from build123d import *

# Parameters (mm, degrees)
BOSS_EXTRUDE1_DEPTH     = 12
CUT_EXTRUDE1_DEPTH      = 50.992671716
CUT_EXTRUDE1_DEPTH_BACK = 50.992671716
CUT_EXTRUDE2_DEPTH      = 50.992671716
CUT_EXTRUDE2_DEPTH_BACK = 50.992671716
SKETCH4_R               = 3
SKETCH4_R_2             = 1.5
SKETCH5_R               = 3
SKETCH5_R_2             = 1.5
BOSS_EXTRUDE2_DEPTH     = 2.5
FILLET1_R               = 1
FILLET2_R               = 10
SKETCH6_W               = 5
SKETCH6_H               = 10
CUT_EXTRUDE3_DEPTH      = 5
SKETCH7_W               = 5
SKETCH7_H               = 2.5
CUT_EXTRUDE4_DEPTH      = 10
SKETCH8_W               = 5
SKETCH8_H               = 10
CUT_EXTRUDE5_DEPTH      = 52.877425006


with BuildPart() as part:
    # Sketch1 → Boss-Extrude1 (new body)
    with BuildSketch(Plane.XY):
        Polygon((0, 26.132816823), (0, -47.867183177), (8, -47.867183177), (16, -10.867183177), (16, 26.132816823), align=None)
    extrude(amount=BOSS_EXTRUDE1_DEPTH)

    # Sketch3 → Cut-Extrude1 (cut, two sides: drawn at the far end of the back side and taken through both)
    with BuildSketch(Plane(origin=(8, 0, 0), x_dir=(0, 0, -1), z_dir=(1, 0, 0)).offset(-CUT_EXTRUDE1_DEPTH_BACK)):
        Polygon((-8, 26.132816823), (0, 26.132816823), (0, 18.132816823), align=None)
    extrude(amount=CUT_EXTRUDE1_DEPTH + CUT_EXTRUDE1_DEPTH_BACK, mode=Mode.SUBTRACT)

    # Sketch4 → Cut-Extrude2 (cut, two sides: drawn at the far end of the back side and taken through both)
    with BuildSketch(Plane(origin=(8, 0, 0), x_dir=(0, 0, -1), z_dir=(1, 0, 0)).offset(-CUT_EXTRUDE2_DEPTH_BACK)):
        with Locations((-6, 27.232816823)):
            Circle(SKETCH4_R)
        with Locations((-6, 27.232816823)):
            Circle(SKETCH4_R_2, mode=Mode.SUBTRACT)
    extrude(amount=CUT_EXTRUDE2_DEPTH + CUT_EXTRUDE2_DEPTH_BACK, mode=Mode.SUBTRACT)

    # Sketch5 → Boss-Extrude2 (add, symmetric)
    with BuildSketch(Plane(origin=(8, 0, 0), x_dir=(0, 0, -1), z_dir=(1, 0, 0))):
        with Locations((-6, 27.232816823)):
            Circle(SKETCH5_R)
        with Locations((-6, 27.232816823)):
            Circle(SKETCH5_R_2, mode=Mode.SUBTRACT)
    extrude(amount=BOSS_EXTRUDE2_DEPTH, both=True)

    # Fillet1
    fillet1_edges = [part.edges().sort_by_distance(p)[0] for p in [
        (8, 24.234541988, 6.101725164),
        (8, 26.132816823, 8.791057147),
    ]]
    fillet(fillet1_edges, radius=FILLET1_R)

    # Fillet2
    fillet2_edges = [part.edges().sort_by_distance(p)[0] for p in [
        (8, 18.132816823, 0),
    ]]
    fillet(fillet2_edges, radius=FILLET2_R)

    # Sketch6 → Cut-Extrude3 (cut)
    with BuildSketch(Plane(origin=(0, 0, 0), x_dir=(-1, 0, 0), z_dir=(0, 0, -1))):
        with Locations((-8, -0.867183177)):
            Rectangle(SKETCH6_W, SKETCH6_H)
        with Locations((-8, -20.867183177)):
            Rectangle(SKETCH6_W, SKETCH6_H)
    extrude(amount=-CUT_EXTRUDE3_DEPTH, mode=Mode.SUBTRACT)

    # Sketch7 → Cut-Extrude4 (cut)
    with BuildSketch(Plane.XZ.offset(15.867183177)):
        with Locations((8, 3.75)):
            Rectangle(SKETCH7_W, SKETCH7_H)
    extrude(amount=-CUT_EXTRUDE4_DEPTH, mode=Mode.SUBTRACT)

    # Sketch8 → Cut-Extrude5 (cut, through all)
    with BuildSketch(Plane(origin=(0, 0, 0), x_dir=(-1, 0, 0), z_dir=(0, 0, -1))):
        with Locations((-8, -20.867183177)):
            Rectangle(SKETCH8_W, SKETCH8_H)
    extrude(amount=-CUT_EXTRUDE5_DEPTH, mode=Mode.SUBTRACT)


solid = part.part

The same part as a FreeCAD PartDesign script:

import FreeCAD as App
import Part
import Sketcher


def edges_at(feature, points):
    """Names of the edges that pass closest to the given points."""
    edges = feature.Shape.Edges
    near = lambda p: min(range(len(edges)), key=lambda i: edges[i].distToShape(Part.Vertex(*p))[0])
    return sorted({f"Edge{near(p) + 1}" for p in points})


def add_polygon(sketch, points):
    """Adds a closed chain of lines whose ends are joined by coincident constraints."""
    first, n = sketch.GeometryCount, len(points)
    for a, b in zip(points, points[1:] + points[:1]):
        sketch.addGeometry(Part.LineSegment(App.Vector(*a, 0), App.Vector(*b, 0)), False)
    for i in range(n):
        sketch.addConstraint(Sketcher.Constraint("Coincident", first + i, 2, first + (i + 1) % n, 1))

doc = App.newDocument("Part")
body = doc.addObject("PartDesign::Body", "Body")

sketch1 = body.newObject("Sketcher::SketchObject", "Sketch")
sketch1.AttachmentSupport = (doc.getObject("XY_Plane"), [""])
sketch1.MapMode = "FlatFace"
add_polygon(sketch1, [(0, 26.132817), (0, -47.867183), (8, -47.867183), (16, -10.867183), (16, 26.132817)])
sketch1.addConstraint(Sketcher.Constraint("Vertical", 0))
sketch1.addConstraint(Sketcher.Constraint("Horizontal", 1))
sketch1.addConstraint(Sketcher.Constraint("Vertical", 3))
sketch1.addConstraint(Sketcher.Constraint("Horizontal", 4))
sketch1.addConstraint(Sketcher.Constraint("PointOnObject", 0, 2, -2))
sketch1.addConstraint(Sketcher.Constraint("DistanceX", 1, 1, 1, 2, 8.0))
sketch1.addConstraint(Sketcher.Constraint("DistanceX", 4, 2, 4, 1, 16.0))
sketch1.addConstraint(Sketcher.Constraint("DistanceY", 0, 2, 0, 1, 74.0))
sketch1.addConstraint(Sketcher.Constraint("DistanceY", 3, 1, 3, 2, 37.0))
sketch1.addConstraint(Sketcher.Constraint("DistanceY", 0, 2, -1, 1, 47.867183))
pad1 = body.newObject("PartDesign::Pad", "Pad")
pad1.Profile = sketch1
pad1.Length = 12

sketch2 = body.newObject("Sketcher::SketchObject", "Sketch001")
sketch2.AttachmentSupport = (doc.getObject("YZ_Plane"), [""])
sketch2.MapMode = "FlatFace"
sketch2.AttachmentOffset = App.Placement(App.Vector(0, 0, 8), App.Rotation())
add_polygon(sketch2, [(26.132817, 0), (26.132817, 8), (18.132817, 0)])
sketch2.addConstraint(Sketcher.Constraint("Vertical", 0))
sketch2.addConstraint(Sketcher.Constraint("Horizontal", 2))
sketch2.addConstraint(Sketcher.Constraint("PointOnObject", 1, 2, -1))
sketch2.addConstraint(Sketcher.Constraint("Equal", 2, 0))
sketch2.addConstraint(Sketcher.Constraint("DistanceX", 2, 1, 2, 2, 8.0))
sketch2.addConstraint(Sketcher.Constraint("DistanceX", -1, 1, 0, 2, 26.132817))
pocket1 = body.newObject("PartDesign::Pocket", "Pocket")
pocket1.Profile = sketch2
pocket1.Type = "ThroughAll"
pocket1.Midplane = True

sketch3 = body.newObject("Sketcher::SketchObject", "Sketch002")
sketch3.AttachmentSupport = (doc.getObject("YZ_Plane"), [""])
sketch3.MapMode = "FlatFace"
sketch3.AttachmentOffset = App.Placement(App.Vector(0, 0, 8), App.Rotation())
sketch3.addGeometry(Part.Circle(App.Vector(27.232817, 6, 0), App.Vector(0, 0, 1), 3), False)
sketch3.addGeometry(Part.Circle(App.Vector(27.232817, 6, 0), App.Vector(0, 0, 1), 1.5), False)
sketch3.addConstraint(Sketcher.Constraint("Coincident", 1, 3, 0, 3))
sketch3.addConstraint(Sketcher.Constraint("Diameter", 0, 6.0))
sketch3.addConstraint(Sketcher.Constraint("Diameter", 1, 3.0))
sketch3.addConstraint(Sketcher.Constraint("DistanceY", -1, 1, 0, 3, 6.0))
sketch3.addConstraint(Sketcher.Constraint("DistanceX", -1, 1, 0, 3, 27.232817))
pocket2 = body.newObject("PartDesign::Pocket", "Pocket001")
pocket2.Profile = sketch3
pocket2.Type = "ThroughAll"
pocket2.Midplane = True

sketch4 = body.newObject("Sketcher::SketchObject", "Sketch003")
sketch4.AttachmentSupport = (doc.getObject("YZ_Plane"), [""])
sketch4.MapMode = "FlatFace"
sketch4.AttachmentOffset = App.Placement(App.Vector(0, 0, 8), App.Rotation())
sketch4.addGeometry(Part.Circle(App.Vector(27.232817, 6, 0), App.Vector(0, 0, 1), 3), False)
sketch4.addGeometry(Part.Circle(App.Vector(27.232817, 6, 0), App.Vector(0, 0, 1), 1.5), False)
sketch4.addConstraint(Sketcher.Constraint("Coincident", 1, 3, 0, 3))
sketch4.addConstraint(Sketcher.Constraint("Diameter", 0, 6.0))
sketch4.addConstraint(Sketcher.Constraint("Diameter", 1, 3.0))
sketch4.addConstraint(Sketcher.Constraint("DistanceY", -1, 1, 0, 3, 6.0))
sketch4.addConstraint(Sketcher.Constraint("DistanceX", -1, 1, 0, 3, 27.232817))
pad2 = body.newObject("PartDesign::Pad", "Pad001")
pad2.Profile = sketch4
pad2.Length = 5
pad2.Midplane = True
doc.recompute()

fillet = body.newObject("PartDesign::Fillet", "Fillet")
fillet.Base = (pad2, edges_at(pad2, [(8, 24.235, 6.102), (8, 26.133, 8.791)]))
fillet.Radius = 1
doc.recompute()

fillet2 = body.newObject("PartDesign::Fillet", "Fillet001")
fillet2.Base = (fillet, edges_at(fillet, [(8, 18.133, 0)]))
fillet2.Radius = 10

sketch5 = body.newObject("Sketcher::SketchObject", "Sketch004")
sketch5.AttachmentSupport = (doc.getObject("XY_Plane"), [""])
sketch5.MapMode = "FlatFace"
add_polygon(sketch5, [(10.5, 4.132817), (10.5, -5.867183), (5.5, -5.867183), (5.5, 4.132817)])
add_polygon(sketch5, [(10.5, -15.867183), (10.5, -25.867183), (5.5, -25.867183), (5.5, -15.867183)])
sketch5.addConstraint(Sketcher.Constraint("Vertical", 0))
sketch5.addConstraint(Sketcher.Constraint("Horizontal", 1))
sketch5.addConstraint(Sketcher.Constraint("Vertical", 2))
sketch5.addConstraint(Sketcher.Constraint("Horizontal", 3))
sketch5.addConstraint(Sketcher.Constraint("Vertical", 4))
sketch5.addConstraint(Sketcher.Constraint("Horizontal", 5))
sketch5.addConstraint(Sketcher.Constraint("Vertical", 6))
sketch5.addConstraint(Sketcher.Constraint("Horizontal", 7))
sketch5.addConstraint(Sketcher.Constraint("Vertical", 3, 2, 4, 2))
sketch5.addConstraint(Sketcher.Constraint("Vertical", 2, 2, 5, 2))
sketch5.addConstraint(Sketcher.Constraint("Equal", 2, 4))
sketch5.addConstraint(Sketcher.Constraint("DistanceX", 1, 2, 1, 1, 5.0))
sketch5.addConstraint(Sketcher.Constraint("DistanceY", 0, 2, 0, 1, 10.0))
sketch5.addConstraint(Sketcher.Constraint("DistanceY", 4, 2, 0, 2, 20.0))
sketch5.addConstraint(Sketcher.Constraint("DistanceX", -1, 1, 0, 2, 10.5))
sketch5.addConstraint(Sketcher.Constraint("DistanceY", 0, 2, -1, 1, 5.867183))
pocket3 = body.newObject("PartDesign::Pocket", "Pocket002")
pocket3.Profile = sketch5
pocket3.Length = 5
pocket3.Reversed = True

sketch6 = body.newObject("Sketcher::SketchObject", "Sketch005")
sketch6.AttachmentSupport = (doc.getObject("XZ_Plane"), [""])
sketch6.MapMode = "FlatFace"
sketch6.AttachmentOffset = App.Placement(App.Vector(0, 0, 15.867183), App.Rotation())
add_polygon(sketch6, [(5.5, 5), (5.5, 2.5), (10.5, 2.5), (10.5, 5)])
sketch6.addConstraint(Sketcher.Constraint("Vertical", 0))
sketch6.addConstraint(Sketcher.Constraint("Horizontal", 1))
sketch6.addConstraint(Sketcher.Constraint("Vertical", 2))
sketch6.addConstraint(Sketcher.Constraint("Horizontal", 3))
sketch6.addConstraint(Sketcher.Constraint("DistanceX", 1, 1, 1, 2, 5.0))
sketch6.addConstraint(Sketcher.Constraint("DistanceY", 0, 2, 0, 1, 2.5))
sketch6.addConstraint(Sketcher.Constraint("DistanceY", -1, 1, 2, 2, 5.0))
sketch6.addConstraint(Sketcher.Constraint("DistanceX", -1, 1, 0, 2, 5.5))
pocket4 = body.newObject("PartDesign::Pocket", "Pocket003")
pocket4.Profile = sketch6
pocket4.Length = 10

sketch7 = body.newObject("Sketcher::SketchObject", "Sketch006")
sketch7.AttachmentSupport = (doc.getObject("XY_Plane"), [""])
sketch7.MapMode = "FlatFace"
add_polygon(sketch7, [(10.5, -15.867183), (10.5, -25.867183), (5.5, -25.867183), (5.5, -15.867183)])
sketch7.addConstraint(Sketcher.Constraint("Vertical", 0))
sketch7.addConstraint(Sketcher.Constraint("Horizontal", 1))
sketch7.addConstraint(Sketcher.Constraint("Vertical", 2))
sketch7.addConstraint(Sketcher.Constraint("Horizontal", 3))
sketch7.addConstraint(Sketcher.Constraint("DistanceX", 1, 2, 1, 1, 5.0))
sketch7.addConstraint(Sketcher.Constraint("DistanceY", 0, 2, 0, 1, 10.0))
sketch7.addConstraint(Sketcher.Constraint("DistanceX", -1, 1, 0, 2, 10.5))
sketch7.addConstraint(Sketcher.Constraint("DistanceY", 0, 2, -1, 1, 25.867183))
pocket5 = body.newObject("PartDesign::Pocket", "Pocket004")
pocket5.Profile = sketch7
pocket5.Type = "ThroughAll"
pocket5.Reversed = True

doc.recompute()
